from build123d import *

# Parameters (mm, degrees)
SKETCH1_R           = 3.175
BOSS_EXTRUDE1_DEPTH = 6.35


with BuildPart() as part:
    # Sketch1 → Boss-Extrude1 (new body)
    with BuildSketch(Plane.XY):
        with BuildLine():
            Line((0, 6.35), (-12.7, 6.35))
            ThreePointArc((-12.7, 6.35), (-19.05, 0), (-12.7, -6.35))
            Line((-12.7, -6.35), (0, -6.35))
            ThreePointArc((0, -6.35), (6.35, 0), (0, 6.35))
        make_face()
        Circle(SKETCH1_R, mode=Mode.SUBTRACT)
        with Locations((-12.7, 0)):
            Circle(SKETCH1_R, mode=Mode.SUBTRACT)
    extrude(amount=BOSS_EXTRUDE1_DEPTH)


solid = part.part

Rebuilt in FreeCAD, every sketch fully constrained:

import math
import FreeCAD as App
import Part
import Sketcher
Q = App.Units.Quantity

doc = App.newDocument("Part")
body = doc.addObject("PartDesign::Body", "Body")

# Sketch on XY plane
sketch1 = body.newObject("Sketcher::SketchObject", "Sketch")
sketch1.AttachmentSupport = (doc.getObject("XY_Plane"), [""])
sketch1.MapMode = "FlatFace"
sketch1.addGeometry([
    Part.LineSegment(App.Vector(0, 6.3, 0), App.Vector(-12.7, 6.3, 0)),  # 0
    Part.ArcOfCircle(Part.Circle(App.Vector(-12.7, 0, 0), App.Vector(0, 0, 1), 6.3), math.radians(90), math.radians(270)),  # 1
    Part.LineSegment(App.Vector(-12.7, -6.3, 0), App.Vector(0, -6.3, 0)),  # 2
    Part.ArcOfCircle(Part.Circle(App.Vector(0, 0, 0), App.Vector(0, 0, 1), 6.3), math.radians(-90), math.radians(90)),  # 3
    Part.Circle(App.Vector(-12.7, 0, 0), App.Vector(0, 0, 1), 3.2),  # 4
    Part.Circle(App.Vector(0, 0, 0), App.Vector(0, 0, 1), 3.2),  # 5
], False)
sketch1.addConstraint([
    Sketcher.Constraint("Tangent", 0, 2, 1, 1),
    Sketcher.Constraint("Tangent", 1, 2, 2, 1),
    Sketcher.Constraint("Tangent", 2, 2, 3, 1),
    Sketcher.Constraint("Tangent", 3, 2, 0, 1),
    Sketcher.Constraint("Horizontal", 0),
    Sketcher.Constraint("Horizontal", 2),
    Sketcher.Constraint("Coincident", 3, 3, -1, 1),
    Sketcher.Constraint("Coincident", 5, 3, -1, 1),
    Sketcher.Constraint("Coincident", 4, 3, 1, 3),
    Sketcher.Constraint("Equal", 4, 5),
    Sketcher.Constraint("Diameter", 4, Q("0.25 in")),
    Sketcher.Constraint("Radius", 1, Q("0.25 in")),
    Sketcher.Constraint("DistanceX", 0, 2, 0, 1, Q("0.5 in")),
])
pad1 = body.newObject("PartDesign::Pad", "Pad")
pad1.Profile = sketch1
pad1.Length = Q("0.25 in")

doc.recompute()
